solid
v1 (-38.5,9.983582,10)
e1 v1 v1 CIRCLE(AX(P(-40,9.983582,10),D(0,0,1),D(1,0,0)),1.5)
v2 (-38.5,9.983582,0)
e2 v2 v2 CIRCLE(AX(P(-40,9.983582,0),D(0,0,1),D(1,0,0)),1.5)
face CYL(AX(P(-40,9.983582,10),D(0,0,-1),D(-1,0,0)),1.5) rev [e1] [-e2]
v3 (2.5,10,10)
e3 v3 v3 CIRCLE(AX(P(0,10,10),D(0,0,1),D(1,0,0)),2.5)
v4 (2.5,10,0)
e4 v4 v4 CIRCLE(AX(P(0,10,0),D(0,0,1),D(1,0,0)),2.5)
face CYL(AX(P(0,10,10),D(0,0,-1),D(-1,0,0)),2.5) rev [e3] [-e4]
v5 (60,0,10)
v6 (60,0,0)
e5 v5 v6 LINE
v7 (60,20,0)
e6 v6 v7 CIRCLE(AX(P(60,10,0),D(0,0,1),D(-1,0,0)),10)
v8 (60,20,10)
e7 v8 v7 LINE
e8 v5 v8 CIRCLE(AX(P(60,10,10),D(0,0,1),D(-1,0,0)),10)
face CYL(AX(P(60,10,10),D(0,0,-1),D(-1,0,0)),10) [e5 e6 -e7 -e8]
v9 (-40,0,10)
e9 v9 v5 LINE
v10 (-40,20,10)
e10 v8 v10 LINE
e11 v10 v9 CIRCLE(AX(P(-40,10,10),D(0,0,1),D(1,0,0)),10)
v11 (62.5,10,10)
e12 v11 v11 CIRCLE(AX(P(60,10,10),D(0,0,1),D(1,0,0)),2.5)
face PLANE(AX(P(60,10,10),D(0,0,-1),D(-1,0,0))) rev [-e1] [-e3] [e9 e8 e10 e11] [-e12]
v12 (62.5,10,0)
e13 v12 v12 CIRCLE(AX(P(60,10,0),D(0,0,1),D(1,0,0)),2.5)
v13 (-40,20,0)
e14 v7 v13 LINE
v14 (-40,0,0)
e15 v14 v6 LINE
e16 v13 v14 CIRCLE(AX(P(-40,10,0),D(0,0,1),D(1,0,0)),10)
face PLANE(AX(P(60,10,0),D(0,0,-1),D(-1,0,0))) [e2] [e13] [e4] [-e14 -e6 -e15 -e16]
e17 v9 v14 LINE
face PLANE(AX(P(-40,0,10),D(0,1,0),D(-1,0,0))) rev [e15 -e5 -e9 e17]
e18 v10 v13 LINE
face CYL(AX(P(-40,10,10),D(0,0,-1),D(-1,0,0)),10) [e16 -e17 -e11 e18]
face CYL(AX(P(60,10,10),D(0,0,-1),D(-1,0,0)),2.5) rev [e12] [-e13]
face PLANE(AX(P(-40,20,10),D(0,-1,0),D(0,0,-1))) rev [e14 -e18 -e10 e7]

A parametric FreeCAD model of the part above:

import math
import FreeCAD as App
import Part
import Sketcher

V = App.Vector

doc = App.newDocument("Part")
body = doc.addObject("PartDesign::Body", "Body")

# Sketch on XY plane
sketch1 = body.newObject("Sketcher::SketchObject", "Sketch")
sketch1.AttachmentSupport = (doc.getObject("XY_Plane"), [""])
sketch1.MapMode = "FlatFace"
sketch1.addGeometry(Part.LineSegment(V(-40, 0, 0), V(60, 0, 0)), False)
sketch1.addGeometry(Part.ArcOfCircle(Part.Circle(V(60, 10, 0), V(0, 0, 1), 10), math.radians(-90), math.radians(90)), False)
sketch1.addGeometry(Part.LineSegment(V(60, 20, 0), V(-40, 20, 0)), False)
sketch1.addGeometry(Part.ArcOfCircle(Part.Circle(V(-40, 10, 0), V(0, 0, 1), 10), math.radians(90), math.radians(270)), False)
sketch1.addGeometry(Part.Circle(V(-40, 10, 0), V(0, 0, 1), 1.5), False)
sketch1.addGeometry(Part.Circle(V(0, 10, 0), V(0, 0, 1), 2.5), False)
sketch1.addGeometry(Part.Circle(V(60, 10, 0), V(0, 0, 1), 2.5), False)
sketch1.addConstraint(Sketcher.Constraint("Tangent", 0, 2, 1, 1))
sketch1.addConstraint(Sketcher.Constraint("Tangent", 1, 2, 2, 1))
sketch1.addConstraint(Sketcher.Constraint("Tangent", 2, 2, 3, 1))
sketch1.addConstraint(Sketcher.Constraint("Tangent", 3, 2, 0, 1))
sketch1.addConstraint(Sketcher.Constraint("Horizontal", 0))
sketch1.addConstraint(Sketcher.Constraint("Horizontal", 2))
sketch1.addConstraint(Sketcher.Constraint("Coincident", 6, 3, 1, 3))
sketch1.addConstraint(Sketcher.Constraint("Equal", 5, 6))
sketch1.addConstraint(Sketcher.Constraint("PointOnObject", 5, 3, -2))
sketch1.addConstraint(Sketcher.Constraint("PointOnObject", 0, 2, -1))
sketch1.addConstraint(Sketcher.Constraint("Horizontal", 3, 3, 5, 3))
sketch1.addConstraint(Sketcher.Constraint("Vertical", 3, 3, 4, 3))
sketch1.addConstraint(Sketcher.Constraint("Diameter", 4, 3.0))
sketch1.addConstraint(Sketcher.Constraint("Diameter", 5, 5.0))
sketch1.addConstraint(Sketcher.Constraint("Radius", 1, 10.0))
sketch1.addConstraint(Sketcher.Constraint("DistanceX", 0, 1, 0, 2, 100.0))
sketch1.addConstraint(Sketcher.Constraint("DistanceX", -1, 1, 1, 3, 60.0))
sketch1.addConstraint(Sketcher.Constraint("DistanceY", -1, 1, 4, 3, 9.983582))
pad1 = body.newObject("PartDesign::Pad", "Pad")
pad1.Profile = sketch1
pad1.Length = 10

doc.recompute()
